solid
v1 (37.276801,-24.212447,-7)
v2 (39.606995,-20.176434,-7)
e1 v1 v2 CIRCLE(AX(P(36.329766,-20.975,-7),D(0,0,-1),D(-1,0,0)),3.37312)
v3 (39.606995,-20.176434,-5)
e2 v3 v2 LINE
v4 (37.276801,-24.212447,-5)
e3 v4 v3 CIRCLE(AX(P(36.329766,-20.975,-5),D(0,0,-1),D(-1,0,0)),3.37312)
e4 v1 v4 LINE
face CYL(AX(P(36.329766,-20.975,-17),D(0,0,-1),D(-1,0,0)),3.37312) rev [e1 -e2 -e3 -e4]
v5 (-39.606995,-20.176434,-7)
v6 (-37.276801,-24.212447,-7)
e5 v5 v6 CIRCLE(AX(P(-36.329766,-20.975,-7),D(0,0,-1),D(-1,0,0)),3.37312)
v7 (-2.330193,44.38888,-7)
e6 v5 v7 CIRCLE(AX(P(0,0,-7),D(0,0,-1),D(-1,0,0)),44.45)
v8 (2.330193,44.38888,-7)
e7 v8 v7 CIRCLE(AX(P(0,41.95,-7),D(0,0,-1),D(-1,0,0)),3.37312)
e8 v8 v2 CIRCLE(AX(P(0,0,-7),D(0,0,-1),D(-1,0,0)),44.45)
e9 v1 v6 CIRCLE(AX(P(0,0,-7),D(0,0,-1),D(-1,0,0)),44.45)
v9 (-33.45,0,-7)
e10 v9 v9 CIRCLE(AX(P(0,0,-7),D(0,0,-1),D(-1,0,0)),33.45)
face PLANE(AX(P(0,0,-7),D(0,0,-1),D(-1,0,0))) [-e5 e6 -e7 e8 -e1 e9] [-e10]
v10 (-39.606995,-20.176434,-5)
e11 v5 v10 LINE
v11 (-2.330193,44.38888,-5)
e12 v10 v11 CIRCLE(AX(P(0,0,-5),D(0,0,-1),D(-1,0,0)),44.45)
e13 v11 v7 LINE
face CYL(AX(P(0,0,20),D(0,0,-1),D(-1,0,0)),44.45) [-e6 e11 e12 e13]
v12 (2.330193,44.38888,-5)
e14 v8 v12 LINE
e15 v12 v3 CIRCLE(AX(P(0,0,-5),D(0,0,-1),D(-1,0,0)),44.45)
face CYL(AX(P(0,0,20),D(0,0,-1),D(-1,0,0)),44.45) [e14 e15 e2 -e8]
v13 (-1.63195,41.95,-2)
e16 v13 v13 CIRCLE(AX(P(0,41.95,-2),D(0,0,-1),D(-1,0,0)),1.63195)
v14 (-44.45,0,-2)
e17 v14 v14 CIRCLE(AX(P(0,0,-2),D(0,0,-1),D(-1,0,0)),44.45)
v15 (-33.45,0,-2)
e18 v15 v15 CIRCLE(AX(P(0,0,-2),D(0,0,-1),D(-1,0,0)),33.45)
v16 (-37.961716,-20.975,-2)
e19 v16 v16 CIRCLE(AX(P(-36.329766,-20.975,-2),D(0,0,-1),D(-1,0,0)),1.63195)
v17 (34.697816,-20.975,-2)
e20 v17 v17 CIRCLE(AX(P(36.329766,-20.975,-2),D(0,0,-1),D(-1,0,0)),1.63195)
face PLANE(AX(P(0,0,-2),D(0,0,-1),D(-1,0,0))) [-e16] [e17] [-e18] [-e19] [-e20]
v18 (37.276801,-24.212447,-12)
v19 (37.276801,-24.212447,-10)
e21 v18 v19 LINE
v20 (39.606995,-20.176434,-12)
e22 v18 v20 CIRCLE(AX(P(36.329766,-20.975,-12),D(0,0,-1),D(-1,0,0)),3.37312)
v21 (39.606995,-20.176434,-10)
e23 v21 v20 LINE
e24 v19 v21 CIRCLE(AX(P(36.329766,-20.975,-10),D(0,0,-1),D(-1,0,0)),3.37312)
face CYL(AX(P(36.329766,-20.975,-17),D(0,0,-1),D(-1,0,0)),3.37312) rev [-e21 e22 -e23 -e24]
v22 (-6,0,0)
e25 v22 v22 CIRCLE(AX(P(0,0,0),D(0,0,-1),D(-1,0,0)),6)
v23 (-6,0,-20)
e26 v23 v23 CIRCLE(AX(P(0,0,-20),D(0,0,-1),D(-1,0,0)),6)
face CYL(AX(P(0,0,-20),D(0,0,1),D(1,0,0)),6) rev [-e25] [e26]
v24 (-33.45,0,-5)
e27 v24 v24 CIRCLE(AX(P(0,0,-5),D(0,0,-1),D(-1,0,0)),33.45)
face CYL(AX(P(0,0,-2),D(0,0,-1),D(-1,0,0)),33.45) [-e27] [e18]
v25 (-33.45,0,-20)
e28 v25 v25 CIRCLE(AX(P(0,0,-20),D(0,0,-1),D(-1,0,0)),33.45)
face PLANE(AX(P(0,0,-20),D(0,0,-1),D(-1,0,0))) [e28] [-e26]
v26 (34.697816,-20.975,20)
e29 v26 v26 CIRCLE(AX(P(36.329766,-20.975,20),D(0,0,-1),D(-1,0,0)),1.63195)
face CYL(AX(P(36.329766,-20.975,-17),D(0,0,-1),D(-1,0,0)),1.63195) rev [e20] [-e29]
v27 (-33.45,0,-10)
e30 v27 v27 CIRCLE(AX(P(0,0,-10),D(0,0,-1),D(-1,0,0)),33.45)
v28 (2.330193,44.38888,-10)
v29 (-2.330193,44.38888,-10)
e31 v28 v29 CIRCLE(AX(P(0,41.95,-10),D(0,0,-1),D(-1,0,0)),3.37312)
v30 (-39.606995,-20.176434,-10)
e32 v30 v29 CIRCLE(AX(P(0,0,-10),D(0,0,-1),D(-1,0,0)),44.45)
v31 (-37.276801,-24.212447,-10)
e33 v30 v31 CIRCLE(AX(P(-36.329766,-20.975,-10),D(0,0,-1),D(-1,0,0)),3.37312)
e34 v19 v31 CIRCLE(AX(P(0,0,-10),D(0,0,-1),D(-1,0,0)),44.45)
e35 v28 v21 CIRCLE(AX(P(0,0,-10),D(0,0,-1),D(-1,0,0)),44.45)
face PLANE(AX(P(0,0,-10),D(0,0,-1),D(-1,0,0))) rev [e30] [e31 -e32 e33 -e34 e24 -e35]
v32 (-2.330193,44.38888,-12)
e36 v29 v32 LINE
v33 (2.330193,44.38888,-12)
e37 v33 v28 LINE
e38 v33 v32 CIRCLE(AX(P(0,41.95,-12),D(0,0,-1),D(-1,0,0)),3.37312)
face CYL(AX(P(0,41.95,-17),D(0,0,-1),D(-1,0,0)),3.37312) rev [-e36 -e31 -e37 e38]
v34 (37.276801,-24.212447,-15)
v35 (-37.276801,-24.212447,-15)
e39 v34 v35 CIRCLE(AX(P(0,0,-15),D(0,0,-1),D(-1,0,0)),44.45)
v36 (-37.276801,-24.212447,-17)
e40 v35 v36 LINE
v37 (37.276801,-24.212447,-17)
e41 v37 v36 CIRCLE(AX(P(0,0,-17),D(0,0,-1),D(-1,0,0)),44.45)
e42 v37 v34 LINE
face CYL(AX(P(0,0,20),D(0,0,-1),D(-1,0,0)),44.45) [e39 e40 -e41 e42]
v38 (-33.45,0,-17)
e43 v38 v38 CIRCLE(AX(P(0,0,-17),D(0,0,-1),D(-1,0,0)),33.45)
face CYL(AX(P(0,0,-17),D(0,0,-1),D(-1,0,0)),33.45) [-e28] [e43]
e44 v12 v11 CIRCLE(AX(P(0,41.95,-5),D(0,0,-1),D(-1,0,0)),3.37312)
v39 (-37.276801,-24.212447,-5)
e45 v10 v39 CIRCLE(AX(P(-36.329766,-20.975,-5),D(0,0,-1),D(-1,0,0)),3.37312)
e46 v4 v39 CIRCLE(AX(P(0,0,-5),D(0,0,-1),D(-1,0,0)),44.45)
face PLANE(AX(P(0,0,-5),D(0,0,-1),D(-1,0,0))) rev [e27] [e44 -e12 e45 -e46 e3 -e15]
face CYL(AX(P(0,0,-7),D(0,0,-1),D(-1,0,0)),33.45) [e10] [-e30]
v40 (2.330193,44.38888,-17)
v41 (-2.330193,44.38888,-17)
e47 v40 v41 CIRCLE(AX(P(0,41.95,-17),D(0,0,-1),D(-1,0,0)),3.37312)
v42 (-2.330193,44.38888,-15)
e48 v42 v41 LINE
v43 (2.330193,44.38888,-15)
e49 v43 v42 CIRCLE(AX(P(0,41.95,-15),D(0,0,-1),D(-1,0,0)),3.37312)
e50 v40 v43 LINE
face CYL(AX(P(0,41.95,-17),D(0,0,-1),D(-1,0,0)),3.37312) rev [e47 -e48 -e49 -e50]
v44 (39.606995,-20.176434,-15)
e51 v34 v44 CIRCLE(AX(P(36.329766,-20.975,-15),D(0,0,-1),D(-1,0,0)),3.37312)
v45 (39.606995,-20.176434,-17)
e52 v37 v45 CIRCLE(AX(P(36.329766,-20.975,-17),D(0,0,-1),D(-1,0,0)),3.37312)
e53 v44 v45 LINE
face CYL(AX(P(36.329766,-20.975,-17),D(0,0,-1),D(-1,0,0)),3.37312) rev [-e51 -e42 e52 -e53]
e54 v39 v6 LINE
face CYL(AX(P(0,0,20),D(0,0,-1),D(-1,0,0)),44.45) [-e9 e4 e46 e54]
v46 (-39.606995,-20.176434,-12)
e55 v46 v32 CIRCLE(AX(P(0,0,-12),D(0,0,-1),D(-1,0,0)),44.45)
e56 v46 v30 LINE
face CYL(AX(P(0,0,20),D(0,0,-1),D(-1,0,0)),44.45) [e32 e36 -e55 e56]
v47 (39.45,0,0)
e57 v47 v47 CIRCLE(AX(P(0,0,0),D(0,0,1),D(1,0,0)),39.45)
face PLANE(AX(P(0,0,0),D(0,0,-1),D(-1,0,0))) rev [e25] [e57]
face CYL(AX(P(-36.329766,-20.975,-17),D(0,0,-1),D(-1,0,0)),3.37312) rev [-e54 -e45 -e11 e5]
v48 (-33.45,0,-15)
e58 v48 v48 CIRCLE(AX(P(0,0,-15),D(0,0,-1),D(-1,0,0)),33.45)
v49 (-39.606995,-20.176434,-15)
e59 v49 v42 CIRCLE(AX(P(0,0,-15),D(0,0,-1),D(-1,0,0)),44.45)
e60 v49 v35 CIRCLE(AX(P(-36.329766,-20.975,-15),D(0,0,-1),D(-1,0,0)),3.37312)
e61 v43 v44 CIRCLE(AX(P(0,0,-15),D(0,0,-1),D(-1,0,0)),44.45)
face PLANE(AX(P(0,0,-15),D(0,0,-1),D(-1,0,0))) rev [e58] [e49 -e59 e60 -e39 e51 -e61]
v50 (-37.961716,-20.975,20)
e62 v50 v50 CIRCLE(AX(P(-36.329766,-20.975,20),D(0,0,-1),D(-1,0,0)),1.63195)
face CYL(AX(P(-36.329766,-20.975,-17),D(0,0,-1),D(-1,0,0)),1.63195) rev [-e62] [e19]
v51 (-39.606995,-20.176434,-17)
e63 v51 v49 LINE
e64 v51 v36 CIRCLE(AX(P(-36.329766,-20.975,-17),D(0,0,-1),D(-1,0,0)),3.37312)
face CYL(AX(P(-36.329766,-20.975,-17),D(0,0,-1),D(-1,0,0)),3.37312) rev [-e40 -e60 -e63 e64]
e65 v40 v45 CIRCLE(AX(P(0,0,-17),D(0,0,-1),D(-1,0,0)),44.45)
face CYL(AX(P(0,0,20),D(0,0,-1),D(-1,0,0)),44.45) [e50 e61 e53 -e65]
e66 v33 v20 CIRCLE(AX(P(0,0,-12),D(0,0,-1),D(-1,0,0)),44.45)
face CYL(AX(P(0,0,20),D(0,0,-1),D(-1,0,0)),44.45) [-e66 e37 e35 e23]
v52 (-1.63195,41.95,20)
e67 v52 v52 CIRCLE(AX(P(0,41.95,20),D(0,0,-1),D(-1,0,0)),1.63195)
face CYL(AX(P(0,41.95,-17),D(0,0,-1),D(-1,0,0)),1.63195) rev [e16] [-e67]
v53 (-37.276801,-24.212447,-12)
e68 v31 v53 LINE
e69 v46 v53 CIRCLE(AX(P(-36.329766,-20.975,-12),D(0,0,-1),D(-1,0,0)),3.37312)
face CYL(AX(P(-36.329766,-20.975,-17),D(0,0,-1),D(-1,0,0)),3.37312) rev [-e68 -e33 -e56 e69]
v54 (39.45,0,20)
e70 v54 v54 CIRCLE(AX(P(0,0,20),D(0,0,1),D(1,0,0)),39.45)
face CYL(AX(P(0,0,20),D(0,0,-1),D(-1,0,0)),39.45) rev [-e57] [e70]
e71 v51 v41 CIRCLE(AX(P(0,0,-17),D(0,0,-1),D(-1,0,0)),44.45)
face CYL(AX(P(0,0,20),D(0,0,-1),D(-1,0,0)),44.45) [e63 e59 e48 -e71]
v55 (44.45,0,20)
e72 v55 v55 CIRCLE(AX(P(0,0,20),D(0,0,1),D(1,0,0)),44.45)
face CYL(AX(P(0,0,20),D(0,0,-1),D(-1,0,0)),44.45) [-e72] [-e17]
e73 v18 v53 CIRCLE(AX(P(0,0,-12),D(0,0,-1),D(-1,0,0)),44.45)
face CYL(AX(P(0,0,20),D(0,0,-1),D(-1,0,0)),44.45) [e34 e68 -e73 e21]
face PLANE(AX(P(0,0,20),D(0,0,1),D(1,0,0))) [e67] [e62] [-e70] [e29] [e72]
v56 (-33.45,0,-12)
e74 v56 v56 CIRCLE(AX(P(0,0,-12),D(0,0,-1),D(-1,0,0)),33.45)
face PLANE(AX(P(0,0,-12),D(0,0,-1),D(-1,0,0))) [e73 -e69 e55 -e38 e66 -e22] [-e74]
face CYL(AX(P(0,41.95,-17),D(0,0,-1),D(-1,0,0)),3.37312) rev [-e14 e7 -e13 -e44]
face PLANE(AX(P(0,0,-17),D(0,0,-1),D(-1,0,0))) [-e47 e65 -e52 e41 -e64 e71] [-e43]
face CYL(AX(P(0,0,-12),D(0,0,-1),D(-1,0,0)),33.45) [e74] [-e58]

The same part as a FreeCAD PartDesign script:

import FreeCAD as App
import Part
import Sketcher

V = App.Vector
Q = App.Units.Quantity

doc = App.newDocument("Part")
body = doc.addObject("PartDesign::Body", "Body")

sketch1 = body.newObject("Sketcher::SketchObject", "Sketch")
sketch1.AttachmentSupport = (doc.getObject("XY_Plane"), [""])
sketch1.MapMode = "FlatFace"
sketch1.addGeometry([
    Part.Circle(V(0, 0, 0), V(0, 0, 1), 44),
    Part.Circle(V(0, 0, 0), V(0, 0, 1), 39),
], False)
sketch1.addConstraint([
    Sketcher.Constraint("Coincident", 0, 3, -1, 1),
    Sketcher.Constraint("Coincident", 1, 3, -1, 1),
    Sketcher.Constraint("Diameter", 0, Q("88.9 mm")),
    Sketcher.Constraint("Diameter", 1, Q("78.9 mm")),
])
pad1 = body.newObject("PartDesign::Pad", "Pad")
pad1.Profile = sketch1
pad1.Length = 20

sketch2 = body.newObject("Sketcher::SketchObject", "Sketch001")
sketch2.AttachmentSupport = (doc.getObject("XY_Plane"), [""])
sketch2.MapMode = "FlatFace"
sketch2.AttachmentOffset = App.Placement(V(0, 0, -20), App.Rotation())
sketch2.addGeometry([
    Part.Circle(V(0, 0, 0), V(0, 0, 1), 44),
    Part.Circle(V(0, 0, 0), V(0, 0, 1), 6),
], False)
sketch2.addConstraint([
    Sketcher.Constraint("Coincident", 0, 3, -1, 1),
    Sketcher.Constraint("Coincident", 1, 3, -1, 1),
    Sketcher.Constraint("Diameter", 1, Q("12 mm")),
    Sketcher.Constraint("Diameter", 0, Q("88.9 mm")),
])
pad2 = body.newObject("PartDesign::Pad", "Pad001")
pad2.Profile = sketch2
pad2.Length = 20

sketch3 = body.newObject("Sketcher::SketchObject", "Sketch002")
sketch3.AttachmentSupport = (doc.getObject("XY_Plane"), [""])
sketch3.MapMode = "FlatFace"
sketch3.AttachmentOffset = App.Placement(V(0, 0, -20), App.Rotation())
sketch3.addGeometry([
    Part.Circle(V(0, 0, 0), V(0, 0, 1), 44),
    Part.Circle(V(0, 0, 0), V(0, 0, 1), 33),
], False)
sketch3.addConstraint([
    Sketcher.Constraint("Coincident", 0, 3, -1, 1),
    Sketcher.Constraint("Coincident", 1, 3, -1, 1),
    Sketcher.Constraint("Diameter", 0, Q("88.9 mm")),
    Sketcher.Constraint("Diameter", 1, Q("66.9 mm")),
])
pocket1 = body.newObject("PartDesign::Pocket", "Pocket")
pocket1.Profile = sketch3
pocket1.Length = 3
pocket1.Reversed = True
doc.recompute()

linearpattern = body.newObject("PartDesign::LinearPattern", "LinearPattern")
linearpattern.Originals = [pocket1]
linearpattern.Direction = (doc.getObject("Z_Axis"), [""])
linearpattern.Mode = "offset"
linearpattern.Offset = 5
linearpattern.Occurrences = 4
body.Tip = linearpattern

sketch4 = body.newObject("Sketcher::SketchObject", "Sketch003")
sketch4.AttachmentSupport = (doc.getObject("XY_Plane"), [""])
sketch4.MapMode = "FlatFace"
sketch4.AttachmentOffset = App.Placement(V(0, 0, -17), App.Rotation())
sketch4.addGeometry(Part.Circle(V(0, 42, 0), V(0, 0, 1), 1.6), False)
sketch4.addConstraint([
    Sketcher.Constraint("PointOnObject", 0, 3, -2),
    Sketcher.Constraint("Diameter", 0, Q("3.2639 mm")),
    Sketcher.Constraint("DistanceY", -1, 1, 0, 3, Q("41.95 mm")),
])
doc.recompute()
hole = body.newObject("PartDesign::Hole", "Hole")
hole.Profile = sketch4
hole.ThreadType = "None"
hole.Diameter = 3.2639
hole.DepthType = "ThroughAll"
hole.HoleCutType = "Counterbore"
hole.HoleCutDiameter = 6.74624
hole.HoleCutDepth = 14.4272
hole.Reversed = True
doc.recompute()

polarpattern = body.newObject("PartDesign::PolarPattern", "PolarPattern")
polarpattern.Originals = [hole]
polarpattern.Axis = (doc.getObject("Z_Axis"), [""])
polarpattern.Angle = 360
polarpattern.Occurrences = 3
body.Tip = polarpattern

doc.recompute()
